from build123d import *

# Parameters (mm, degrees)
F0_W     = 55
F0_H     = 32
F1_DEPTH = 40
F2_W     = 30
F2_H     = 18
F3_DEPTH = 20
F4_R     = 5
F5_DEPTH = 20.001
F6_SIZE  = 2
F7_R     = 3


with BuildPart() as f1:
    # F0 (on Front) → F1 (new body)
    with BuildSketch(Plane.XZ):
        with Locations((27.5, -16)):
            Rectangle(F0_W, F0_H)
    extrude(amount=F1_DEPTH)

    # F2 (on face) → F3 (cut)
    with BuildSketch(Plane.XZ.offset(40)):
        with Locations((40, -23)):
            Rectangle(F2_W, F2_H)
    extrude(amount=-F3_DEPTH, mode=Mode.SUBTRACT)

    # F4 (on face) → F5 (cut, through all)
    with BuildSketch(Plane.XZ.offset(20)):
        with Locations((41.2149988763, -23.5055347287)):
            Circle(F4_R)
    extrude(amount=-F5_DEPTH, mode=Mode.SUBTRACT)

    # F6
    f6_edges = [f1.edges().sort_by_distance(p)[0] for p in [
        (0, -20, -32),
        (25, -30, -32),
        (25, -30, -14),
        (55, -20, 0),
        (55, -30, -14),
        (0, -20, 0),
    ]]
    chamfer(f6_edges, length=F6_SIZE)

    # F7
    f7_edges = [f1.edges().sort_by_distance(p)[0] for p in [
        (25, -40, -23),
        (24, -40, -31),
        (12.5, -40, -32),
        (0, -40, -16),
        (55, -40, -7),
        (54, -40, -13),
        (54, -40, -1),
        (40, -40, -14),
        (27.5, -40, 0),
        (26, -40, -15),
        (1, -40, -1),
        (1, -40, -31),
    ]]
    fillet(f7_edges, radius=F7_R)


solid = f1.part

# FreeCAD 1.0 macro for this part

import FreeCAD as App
import Part
import Sketcher

V = App.Vector
Q = App.Units.Quantity


def edges_at(feature, points):
    """Names of the edges that pass closest to the given points."""
    edges = feature.Shape.Edges
    near = lambda p: min(range(len(edges)), key=lambda i: edges[i].distToShape(Part.Vertex(*p))[0])
    return sorted({f"Edge{near(p) + 1}" for p in points})


def add_polygon(sketch, points):
    """Adds a closed chain of lines whose ends are joined by coincident constraints."""
    first, n = sketch.GeometryCount, len(points)
    for a, b in zip(points, points[1:] + points[:1]):
        sketch.addGeometry(Part.LineSegment(App.Vector(*a, 0), App.Vector(*b, 0)), False)
    for i in range(n):
        sketch.addConstraint(Sketcher.Constraint("Coincident", first + i, 2, first + (i + 1) % n, 1))

doc = App.newDocument("Part")
body = doc.addObject("PartDesign::Body", "Body")

sketch1 = body.newObject("Sketcher::SketchObject", "Sketch")
sketch1.AttachmentSupport = (doc.getObject("XZ_Plane"), [""])
sketch1.MapMode = "FlatFace"
add_polygon(sketch1, [(0, 0), (0, -32), (55, -32), (55, 0)])
sketch1.addConstraint([
    Sketcher.Constraint("Vertical", 0),
    Sketcher.Constraint("Horizontal", 1),
    Sketcher.Constraint("Vertical", 2),
    Sketcher.Constraint("Horizontal", 3),
    Sketcher.Constraint("Coincident", 3, 2, -1, 1),
    Sketcher.Constraint("DistanceX", 1, 1, 1, 2, Q("55 mm")),
    Sketcher.Constraint("DistanceY", 0, 2, 0, 1, Q("32 mm")),
])
pad1 = body.newObject("PartDesign::Pad", "Pad")
pad1.Profile = sketch1
pad1.Length = 40

sketch2 = body.newObject("Sketcher::SketchObject", "Sketch001")
sketch2.AttachmentSupport = (doc.getObject("XZ_Plane"), [""])
sketch2.MapMode = "FlatFace"
sketch2.AttachmentOffset = App.Placement(V(0, 0, 40), App.Rotation())
add_polygon(sketch2, [(25, -14), (25, -32), (55, -32), (55, -14)])
sketch2.addConstraint([
    Sketcher.Constraint("Vertical", 0),
    Sketcher.Constraint("Horizontal", 1),
    Sketcher.Constraint("Vertical", 2),
    Sketcher.Constraint("Horizontal", 3),
    Sketcher.Constraint("DistanceX", 1, 1, 1, 2, Q("30 mm")),
    Sketcher.Constraint("DistanceY", 0, 2, 0, 1, Q("18 mm")),
    Sketcher.Constraint("DistanceX", -1, 1, 0, 2, Q("25 mm")),
    Sketcher.Constraint("DistanceY", 0, 2, -1, 1, Q("32 mm")),
])
pocket1 = body.newObject("PartDesign::Pocket", "Pocket")
pocket1.Profile = sketch2
pocket1.Length = 20

sketch3 = body.newObject("Sketcher::SketchObject", "Sketch002")
sketch3.AttachmentSupport = (doc.getObject("XZ_Plane"), [""])
sketch3.MapMode = "FlatFace"
sketch3.AttachmentOffset = App.Placement(V(0, 0, 20), App.Rotation())
sketch3.addGeometry(Part.Circle(V(41, -24, 0), V(0, 0, 1), 5), False)
sketch3.addConstraint([
    Sketcher.Constraint("Diameter", 0, Q("10 mm")),
    Sketcher.Constraint("DistanceX", -1, 1, 0, 3, Q("41.214999 mm")),
    Sketcher.Constraint("DistanceY", 0, 3, -1, 1, Q("23.505535 mm")),
])
pocket2 = body.newObject("PartDesign::Pocket", "Pocket001")
pocket2.Profile = sketch3
pocket2.Type = "ThroughAll"
doc.recompute()

chamfer = body.newObject("PartDesign::Chamfer", "Chamfer")
chamfer.Base = (pocket2, edges_at(pocket2, [
    (0, -20, -32),
    (25, -30, -32),
    (25, -30, -14),
    (55, -20, 0),
    (55, -30, -14),
    (0, -20, 0),
]))
chamfer.Size = 2
doc.recompute()

fillet = body.newObject("PartDesign::Fillet", "Fillet")
fillet.Base = (chamfer, edges_at(chamfer, [
    (25, -40, -23),
    (24, -40, -31),
    (12.5, -40, -32),
    (0, -40, -16),
    (55, -40, -7),
    (54, -40, -13),
    (54, -40, -1),
    (40, -40, -14),
    (27.5, -40, 0),
    (26, -40, -15),
    (1, -40, -1),
    (1, -40, -31),
]))
fillet.Radius = 3

doc.recompute()
